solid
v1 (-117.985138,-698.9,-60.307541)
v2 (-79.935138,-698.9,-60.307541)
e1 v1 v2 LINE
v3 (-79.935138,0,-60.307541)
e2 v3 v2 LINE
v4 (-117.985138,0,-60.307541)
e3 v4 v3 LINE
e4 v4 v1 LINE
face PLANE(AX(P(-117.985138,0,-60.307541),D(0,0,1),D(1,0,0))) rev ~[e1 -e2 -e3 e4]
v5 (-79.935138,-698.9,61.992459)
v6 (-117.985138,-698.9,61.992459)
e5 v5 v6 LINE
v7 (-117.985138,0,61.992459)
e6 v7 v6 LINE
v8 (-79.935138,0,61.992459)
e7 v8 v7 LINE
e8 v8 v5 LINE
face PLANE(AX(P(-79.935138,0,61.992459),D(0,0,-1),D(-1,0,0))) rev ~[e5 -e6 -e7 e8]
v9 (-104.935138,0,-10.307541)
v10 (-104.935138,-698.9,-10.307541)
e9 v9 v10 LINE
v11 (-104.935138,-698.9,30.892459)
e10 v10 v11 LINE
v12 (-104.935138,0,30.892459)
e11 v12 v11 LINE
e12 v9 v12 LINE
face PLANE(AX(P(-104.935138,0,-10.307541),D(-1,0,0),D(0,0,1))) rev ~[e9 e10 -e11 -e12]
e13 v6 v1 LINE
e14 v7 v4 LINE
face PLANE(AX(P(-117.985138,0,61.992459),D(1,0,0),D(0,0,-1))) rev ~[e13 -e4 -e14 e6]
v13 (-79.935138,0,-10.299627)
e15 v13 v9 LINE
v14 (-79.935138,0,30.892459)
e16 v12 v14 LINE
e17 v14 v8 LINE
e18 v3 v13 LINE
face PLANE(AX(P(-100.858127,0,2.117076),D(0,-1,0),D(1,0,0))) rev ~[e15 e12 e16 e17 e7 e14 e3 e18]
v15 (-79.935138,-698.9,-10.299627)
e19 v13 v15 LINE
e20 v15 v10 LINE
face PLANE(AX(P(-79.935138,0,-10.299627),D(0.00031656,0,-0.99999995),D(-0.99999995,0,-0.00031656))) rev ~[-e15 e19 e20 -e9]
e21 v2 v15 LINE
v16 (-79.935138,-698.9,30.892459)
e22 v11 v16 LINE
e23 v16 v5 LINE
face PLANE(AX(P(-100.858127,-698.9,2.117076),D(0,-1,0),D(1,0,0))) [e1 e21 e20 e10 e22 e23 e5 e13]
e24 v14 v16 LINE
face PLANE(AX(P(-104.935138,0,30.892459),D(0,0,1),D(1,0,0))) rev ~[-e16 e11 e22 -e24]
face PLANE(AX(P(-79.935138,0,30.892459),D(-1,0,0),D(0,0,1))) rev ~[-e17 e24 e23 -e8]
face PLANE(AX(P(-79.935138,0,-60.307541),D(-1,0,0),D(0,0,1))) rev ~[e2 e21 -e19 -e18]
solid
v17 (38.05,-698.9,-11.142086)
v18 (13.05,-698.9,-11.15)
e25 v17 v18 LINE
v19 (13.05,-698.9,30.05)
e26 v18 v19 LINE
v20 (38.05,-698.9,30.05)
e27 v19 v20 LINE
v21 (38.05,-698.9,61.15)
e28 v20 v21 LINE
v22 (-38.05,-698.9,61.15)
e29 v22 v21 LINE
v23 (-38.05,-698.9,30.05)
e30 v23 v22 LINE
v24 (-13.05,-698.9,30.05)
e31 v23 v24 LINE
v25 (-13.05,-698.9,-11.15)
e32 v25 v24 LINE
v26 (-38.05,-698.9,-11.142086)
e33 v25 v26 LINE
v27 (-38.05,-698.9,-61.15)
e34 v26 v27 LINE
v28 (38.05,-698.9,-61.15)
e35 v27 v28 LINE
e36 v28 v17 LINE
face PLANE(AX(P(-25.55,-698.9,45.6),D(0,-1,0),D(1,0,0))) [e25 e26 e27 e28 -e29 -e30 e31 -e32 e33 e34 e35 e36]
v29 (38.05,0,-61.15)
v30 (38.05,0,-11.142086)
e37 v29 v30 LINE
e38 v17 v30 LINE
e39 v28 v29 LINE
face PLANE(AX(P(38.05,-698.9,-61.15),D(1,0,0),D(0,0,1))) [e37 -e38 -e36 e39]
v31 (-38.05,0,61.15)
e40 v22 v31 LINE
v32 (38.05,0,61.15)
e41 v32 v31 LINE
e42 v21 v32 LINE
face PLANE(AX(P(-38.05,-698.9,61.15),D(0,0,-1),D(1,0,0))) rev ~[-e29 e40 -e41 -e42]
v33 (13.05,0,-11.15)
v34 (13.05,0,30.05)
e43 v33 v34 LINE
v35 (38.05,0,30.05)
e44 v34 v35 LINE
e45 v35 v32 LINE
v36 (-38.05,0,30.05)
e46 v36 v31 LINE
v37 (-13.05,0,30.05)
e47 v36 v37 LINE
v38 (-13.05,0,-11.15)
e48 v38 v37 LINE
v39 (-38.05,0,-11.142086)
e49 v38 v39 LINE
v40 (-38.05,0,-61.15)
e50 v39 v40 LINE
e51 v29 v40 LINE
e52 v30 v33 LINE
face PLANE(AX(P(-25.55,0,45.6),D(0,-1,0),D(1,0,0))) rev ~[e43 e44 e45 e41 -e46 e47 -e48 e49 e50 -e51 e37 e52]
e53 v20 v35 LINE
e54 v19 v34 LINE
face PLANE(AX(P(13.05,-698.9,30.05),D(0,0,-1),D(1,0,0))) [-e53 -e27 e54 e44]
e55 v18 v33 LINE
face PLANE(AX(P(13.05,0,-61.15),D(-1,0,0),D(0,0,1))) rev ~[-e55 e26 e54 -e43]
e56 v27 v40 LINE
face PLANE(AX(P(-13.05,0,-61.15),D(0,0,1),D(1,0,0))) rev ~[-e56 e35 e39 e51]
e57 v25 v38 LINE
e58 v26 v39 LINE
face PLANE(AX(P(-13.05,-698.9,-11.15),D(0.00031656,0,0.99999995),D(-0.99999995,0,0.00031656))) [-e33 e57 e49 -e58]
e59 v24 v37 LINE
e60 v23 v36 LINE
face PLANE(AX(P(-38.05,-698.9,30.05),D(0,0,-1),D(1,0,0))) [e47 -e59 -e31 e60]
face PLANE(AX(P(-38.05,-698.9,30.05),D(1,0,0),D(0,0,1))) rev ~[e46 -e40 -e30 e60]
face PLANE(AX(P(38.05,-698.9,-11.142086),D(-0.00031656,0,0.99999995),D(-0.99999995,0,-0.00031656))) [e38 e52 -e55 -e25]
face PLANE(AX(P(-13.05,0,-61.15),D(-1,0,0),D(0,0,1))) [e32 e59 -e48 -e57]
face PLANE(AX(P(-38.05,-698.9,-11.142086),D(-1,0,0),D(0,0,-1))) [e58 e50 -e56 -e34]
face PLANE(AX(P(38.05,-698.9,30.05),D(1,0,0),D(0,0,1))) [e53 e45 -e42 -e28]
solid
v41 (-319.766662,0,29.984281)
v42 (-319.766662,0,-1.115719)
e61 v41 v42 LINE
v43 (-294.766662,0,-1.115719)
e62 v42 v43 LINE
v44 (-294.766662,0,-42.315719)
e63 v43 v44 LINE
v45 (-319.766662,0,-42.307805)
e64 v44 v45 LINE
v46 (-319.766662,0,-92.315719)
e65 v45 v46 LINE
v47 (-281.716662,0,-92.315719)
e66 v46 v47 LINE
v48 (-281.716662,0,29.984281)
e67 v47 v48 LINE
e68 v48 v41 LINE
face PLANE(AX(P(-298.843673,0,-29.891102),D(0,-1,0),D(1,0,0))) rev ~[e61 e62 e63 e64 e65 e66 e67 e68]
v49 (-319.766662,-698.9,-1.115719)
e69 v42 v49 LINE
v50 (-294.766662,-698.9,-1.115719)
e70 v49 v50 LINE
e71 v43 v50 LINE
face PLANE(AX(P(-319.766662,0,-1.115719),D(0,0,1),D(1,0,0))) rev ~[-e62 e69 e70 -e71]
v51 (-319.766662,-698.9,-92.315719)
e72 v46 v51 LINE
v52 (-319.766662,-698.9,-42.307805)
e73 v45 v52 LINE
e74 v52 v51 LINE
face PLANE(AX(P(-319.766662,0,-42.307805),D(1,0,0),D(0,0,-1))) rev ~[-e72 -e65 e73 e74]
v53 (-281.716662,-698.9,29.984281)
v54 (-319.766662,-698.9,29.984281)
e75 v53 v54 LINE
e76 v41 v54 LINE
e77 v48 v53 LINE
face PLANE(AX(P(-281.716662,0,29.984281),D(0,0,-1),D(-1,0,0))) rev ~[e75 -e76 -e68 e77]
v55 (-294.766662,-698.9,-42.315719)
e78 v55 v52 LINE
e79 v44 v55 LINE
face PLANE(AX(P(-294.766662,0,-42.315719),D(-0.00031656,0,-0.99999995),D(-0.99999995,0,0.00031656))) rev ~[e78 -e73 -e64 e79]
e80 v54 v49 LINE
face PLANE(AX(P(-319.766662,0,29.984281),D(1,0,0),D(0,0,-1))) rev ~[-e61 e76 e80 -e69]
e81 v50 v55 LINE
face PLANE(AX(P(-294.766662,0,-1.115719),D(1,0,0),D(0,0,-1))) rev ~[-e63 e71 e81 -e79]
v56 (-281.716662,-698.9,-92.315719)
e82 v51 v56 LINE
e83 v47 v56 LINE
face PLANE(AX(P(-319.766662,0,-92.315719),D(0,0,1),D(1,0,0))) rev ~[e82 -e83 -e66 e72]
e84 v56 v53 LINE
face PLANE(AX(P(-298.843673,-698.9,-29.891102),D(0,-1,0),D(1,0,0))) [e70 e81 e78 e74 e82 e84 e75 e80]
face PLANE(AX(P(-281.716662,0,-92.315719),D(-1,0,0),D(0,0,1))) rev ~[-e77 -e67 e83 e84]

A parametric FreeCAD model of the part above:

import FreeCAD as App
import Part
import Sketcher

doc = App.newDocument("Part")
params = doc.addObject("Spreadsheet::Sheet", "Params")
for row, (alias, value) in enumerate([
    ("sketch1_width", "26.1 mm"),
    ("sketch1_height", "122.3 mm"),
    ("pad1_length", "698.9 mm"),
    ("sketch2_width", "25 mm"),
    ("sketch2_height", "50 mm"),
    ("sketch2_height2", "31.1 mm"),
    ("pad2_length", "698.9 mm"),
    ("sketch3_width", "25 mm"),
    ("sketch3_height", "31.1 mm"),
    ("sketch3_height2", "122.3 mm"),
    ("sketch3_height3", "41.2 mm"),
    ("sketch3_width2", "38.05 mm"),
    ("pad3_length", "698.9 mm"),
    ("sketch4_width", "25 mm"),
    ("sketch4_height", "122.3 mm"),
    ("sketch4_height2", "31.1 mm"),
    ("sketch4_height3", "41.2 mm"),
    ("sketch4_width2", "38.05 mm"),
    ("pad4_length", "698.9 mm"),
], start=1):
    params.set(f"A{row}", alias)
    params.set(f"B{row}", "=" + value)
    params.setAlias(f"B{row}", alias)

body = doc.addObject("PartDesign::Body", "Body")

sketch1 = body.newObject("Sketcher::SketchObject", "Sketch")
sketch1.AttachmentSupport = (doc.getObject("XZ_Plane"), [""])
sketch1.MapMode = "FlatFace"
sketch1.addGeometry(Part.LineSegment(App.Vector(-13, 61, 0), App.Vector(-13, -61, 0)), False)
sketch1.addGeometry(Part.LineSegment(App.Vector(-13, -61, 0), App.Vector(13, -61, 0)), False)
sketch1.addGeometry(Part.LineSegment(App.Vector(13, -61, 0), App.Vector(13, 61, 0)), False)
sketch1.addGeometry(Part.LineSegment(App.Vector(13, 61, 0), App.Vector(-13, 61, 0)), False)
sketch1.addConstraint(Sketcher.Constraint("Coincident", 0, 2, 1, 1))
sketch1.addConstraint(Sketcher.Constraint("Coincident", 1, 2, 2, 1))
sketch1.addConstraint(Sketcher.Constraint("Coincident", 2, 2, 3, 1))
sketch1.addConstraint(Sketcher.Constraint("Coincident", 3, 2, 0, 1))
sketch1.addConstraint(Sketcher.Constraint("Vertical", 0))
sketch1.addConstraint(Sketcher.Constraint("Horizontal", 1))
sketch1.addConstraint(Sketcher.Constraint("Vertical", 2))
sketch1.addConstraint(Sketcher.Constraint("Horizontal", 3))
sketch1.addConstraint(Sketcher.Constraint("Symmetric", 0, 2, 2, 2, -1, 1))
sketch1.addConstraint(Sketcher.Constraint("DistanceX", 1, 1, 1, 2, 26.1))
sketch1.addConstraint(Sketcher.Constraint("DistanceY", 0, 2, 0, 1, 122.3))
sketch1.setExpression("Constraints[9]", "Params.sketch1_width")
sketch1.setExpression("Constraints[10]", "Params.sketch1_height")
pad1 = body.newObject("PartDesign::Pad", "Pad")
pad1.Profile = sketch1
pad1.setExpression("Length", "Params.pad1_length")

sketch2 = body.newObject("Sketcher::SketchObject", "Sketch001")
sketch2.AttachmentSupport = (doc.getObject("XZ_Plane"), [""])
sketch2.MapMode = "FlatFace"
sketch2.AttachmentOffset = App.Placement(App.Vector(0, 0, 698.9), App.Rotation())
sketch2.addGeometry(Part.LineSegment(App.Vector(-38, 61, 0), App.Vector(-38, 30, 0)), False)
sketch2.addGeometry(Part.LineSegment(App.Vector(-38, 30, 0), App.Vector(-13, 30, 0)), False)
sketch2.addGeometry(Part.LineSegment(App.Vector(-13, 30, 0), App.Vector(-13, 61, 0)), False)
sketch2.addGeometry(Part.LineSegment(App.Vector(-13, 61, 0), App.Vector(-38, 61, 0)), False)
sketch2.addGeometry(Part.LineSegment(App.Vector(-38, -61, 0), App.Vector(-13, -61, 0)), False)
sketch2.addGeometry(Part.LineSegment(App.Vector(-13, -61, 0), App.Vector(-13, -11, 0)), False)
sketch2.addGeometry(Part.LineSegment(App.Vector(-13, -11, 0), App.Vector(-38, -11, 0)), False)
sketch2.addGeometry(Part.LineSegment(App.Vector(-38, -11, 0), App.Vector(-38, -61, 0)), False)
sketch2.addGeometry(Part.LineSegment(App.Vector(13, 61, 0), App.Vector(13, 30, 0)), False)
sketch2.addGeometry(Part.LineSegment(App.Vector(13, 30, 0), App.Vector(38, 30, 0)), False)
sketch2.addGeometry(Part.LineSegment(App.Vector(38, 30, 0), App.Vector(38, 61, 0)), False)
sketch2.addGeometry(Part.LineSegment(App.Vector(38, 61, 0), App.Vector(13, 61, 0)), False)
sketch2.addGeometry(Part.LineSegment(App.Vector(38, -61, 0), App.Vector(38, -11, 0)), False)
sketch2.addGeometry(Part.LineSegment(App.Vector(38, -11, 0), App.Vector(13, -11, 0)), False)
sketch2.addGeometry(Part.LineSegment(App.Vector(13, -11, 0), App.Vector(13, -61, 0)), False)
sketch2.addGeometry(Part.LineSegment(App.Vector(13, -61, 0), App.Vector(38, -61, 0)), False)
sketch2.addConstraint(Sketcher.Constraint("Coincident", 0, 2, 1, 1))
sketch2.addConstraint(Sketcher.Constraint("Coincident", 1, 2, 2, 1))
sketch2.addConstraint(Sketcher.Constraint("Coincident", 2, 2, 3, 1))
sketch2.addConstraint(Sketcher.Constraint("Coincident", 3, 2, 0, 1))
sketch2.addConstraint(Sketcher.Constraint("Coincident", 4, 2, 5, 1))
sketch2.addConstraint(Sketcher.Constraint("Coincident", 5, 2, 6, 1))
sketch2.addConstraint(Sketcher.Constraint("Coincident", 6, 2, 7, 1))
sketch2.addConstraint(Sketcher.Constraint("Coincident", 7, 2, 4, 1))
sketch2.addConstraint(Sketcher.Constraint("Coincident", 8, 2, 9, 1))
sketch2.addConstraint(Sketcher.Constraint("Coincident", 9, 2, 10, 1))
sketch2.addConstraint(Sketcher.Constraint("Coincident", 10, 2, 11, 1))
sketch2.addConstraint(Sketcher.Constraint("Coincident", 11, 2, 8, 1))
sketch2.addConstraint(Sketcher.Constraint("Coincident", 12, 2, 13, 1))
sketch2.addConstraint(Sketcher.Constraint("Coincident", 13, 2, 14, 1))
sketch2.addConstraint(Sketcher.Constraint("Coincident", 14, 2, 15, 1))
sketch2.addConstraint(Sketcher.Constraint("Coincident", 15, 2, 12, 1))
sketch2.addConstraint(Sketcher.Constraint("Vertical", 0))
sketch2.addConstraint(Sketcher.Constraint("Horizontal", 1))
sketch2.addConstraint(Sketcher.Constraint("Vertical", 2))
sketch2.addConstraint(Sketcher.Constraint("Horizontal", 3))
sketch2.addConstraint(Sketcher.Constraint("Horizontal", 4))
sketch2.addConstraint(Sketcher.Constraint("Vertical", 5))
sketch2.addConstraint(Sketcher.Constraint("Vertical", 7))
sketch2.addConstraint(Sketcher.Constraint("Vertical", 8))
sketch2.addConstraint(Sketcher.Constraint("Horizontal", 9))
sketch2.addConstraint(Sketcher.Constraint("Vertical", 10))
sketch2.addConstraint(Sketcher.Constraint("Horizontal", 11))
sketch2.addConstraint(Sketcher.Constraint("Vertical", 12))
sketch2.addConstraint(Sketcher.Constraint("Vertical", 14))
sketch2.addConstraint(Sketcher.Constraint("Horizontal", 15))
sketch2.addConstraint(Sketcher.Constraint("Symmetric", 7, 2, 10, 2, -1, 1))
sketch2.addConstraint(Sketcher.Constraint("Symmetric", 2, 2, 14, 2, -1, 1))
sketch2.addConstraint(Sketcher.Constraint("Symmetric", 1, 2, 8, 2, -2))
sketch2.addConstraint(Sketcher.Constraint("Symmetric", 3, 2, 10, 2, -2))
sketch2.addConstraint(Sketcher.Constraint("Symmetric", 6, 2, 12, 2, -2))
sketch2.addConstraint(Sketcher.Constraint("Symmetric", 5, 2, 13, 2, -2))
sketch2.addConstraint(Sketcher.Constraint("DistanceX", 1, 1, 1, 2, 25.0))
sketch2.addConstraint(Sketcher.Constraint("DistanceY", 5, 1, 5, 2, 50.0))
sketch2.addConstraint(Sketcher.Constraint("DistanceY", 0, 2, 0, 1, 31.1))
sketch2.addConstraint(Sketcher.Constraint("DistanceY", 4, 2, 1, 2, 91.2))
sketch2.addConstraint(Sketcher.Constraint("DistanceX", 1, 2, 8, 2, 26.1))
sketch2.addConstraint(Sketcher.Constraint("DistanceY", 7, 2, 7, 1, 50.007914))
sketch2.setExpression("Constraints[36]", "Params.sketch2_width")
sketch2.setExpression("Constraints[37]", "Params.sketch2_height")
sketch2.setExpression("Constraints[38]", "Params.sketch2_height2")
pad2 = body.newObject("PartDesign::Pad", "Pad001")
pad2.Profile = sketch2
pad2.setExpression("Length", "Params.pad2_length")
pad2.Reversed = True
body2 = doc.addObject("PartDesign::Body", "Body001")

sketch3 = body2.newObject("Sketcher::SketchObject", "Sketch002")
sketch3.AttachmentSupport = (doc.getObject("XZ_Plane001"), [""])
sketch3.MapMode = "FlatFace"
sketch3.addGeometry(Part.LineSegment(App.Vector(-105, 31, 0), App.Vector(-80, 31, 0)), False)
sketch3.addGeometry(Part.LineSegment(App.Vector(-80, 31, 0), App.Vector(-80, 62, 0)), False)
sketch3.addGeometry(Part.LineSegment(App.Vector(-80, 62, 0), App.Vector(-118, 62, 0)), False)
sketch3.addGeometry(Part.LineSegment(App.Vector(-118, 62, 0), App.Vector(-118, -60, 0)), False)
sketch3.addGeometry(Part.LineSegment(App.Vector(-118, -60, 0), App.Vector(-80, -60, 0)), False)
sketch3.addGeometry(Part.LineSegment(App.Vector(-80, -60, 0), App.Vector(-80, -10, 0)), False)
sketch3.addGeometry(Part.LineSegment(App.Vector(-80, -10, 0), App.Vector(-105, -10, 0)), False)
sketch3.addGeometry(Part.LineSegment(App.Vector(-105, -10, 0), App.Vector(-105, 31, 0)), False)
sketch3.addConstraint(Sketcher.Constraint("Coincident", 0, 2, 1, 1))
sketch3.addConstraint(Sketcher.Constraint("Coincident", 1, 2, 2, 1))
sketch3.addConstraint(Sketcher.Constraint("Coincident", 2, 2, 3, 1))
sketch3.addConstraint(Sketcher.Constraint("Coincident", 3, 2, 4, 1))
sketch3.addConstraint(Sketcher.Constraint("Coincident", 4, 2, 5, 1))
sketch3.addConstraint(Sketcher.Constraint("Coincident", 5, 2, 6, 1))
sketch3.addConstraint(Sketcher.Constraint("Coincident", 6, 2, 7, 1))
sketch3.addConstraint(Sketcher.Constraint("Coincident", 7, 2, 0, 1))
sketch3.addConstraint(Sketcher.Constraint("Horizontal", 0))
sketch3.addConstraint(Sketcher.Constraint("Vertical", 1))
sketch3.addConstraint(Sketcher.Constraint("Horizontal", 2))
sketch3.addConstraint(Sketcher.Constraint("Vertical", 3))
sketch3.addConstraint(Sketcher.Constraint("Horizontal", 4))
sketch3.addConstraint(Sketcher.Constraint("Vertical", 5))
sketch3.addConstraint(Sketcher.Constraint("Vertical", 7))
sketch3.addConstraint(Sketcher.Constraint("Vertical", 1, 2, 4, 2))
sketch3.addConstraint(Sketcher.Constraint("DistanceX", 0, 1, 0, 2, 25.0))
sketch3.addConstraint(Sketcher.Constraint("DistanceY", 1, 1, 1, 2, 31.1))
sketch3.addConstraint(Sketcher.Constraint("DistanceY", 3, 2, 3, 1, 122.3))
sketch3.addConstraint(Sketcher.Constraint("DistanceY", 7, 1, 7, 2, 41.2))
sketch3.addConstraint(Sketcher.Constraint("DistanceX", 2, 2, 2, 1, 38.05))
sketch3.addConstraint(Sketcher.Constraint("DistanceY", 5, 1, 5, 2, 50.007914))
sketch3.addConstraint(Sketcher.Constraint("DistanceY", -1, 1, 0, 2, 30.892459))
sketch3.addConstraint(Sketcher.Constraint("DistanceX", 2, 2, -1, 1, 117.985138))
sketch3.setExpression("Constraints[16]", "Params.sketch3_width")
sketch3.setExpression("Constraints[17]", "Params.sketch3_height")
sketch3.setExpression("Constraints[18]", "Params.sketch3_height2")
sketch3.setExpression("Constraints[19]", "Params.sketch3_height3")
sketch3.setExpression("Constraints[20]", "Params.sketch3_width2")
pad3 = body2.newObject("PartDesign::Pad", "Pad002")
pad3.Profile = sketch3
pad3.setExpression("Length", "Params.pad3_length")
body3 = doc.addObject("PartDesign::Body", "Body002")

sketch4 = body3.newObject("Sketcher::SketchObject", "Sketch003")
sketch4.AttachmentSupport = (doc.getObject("XZ_Plane002"), [""])
sketch4.MapMode = "FlatFace"
sketch4.addGeometry(Part.LineSegment(App.Vector(-282, -92, 0), App.Vector(-282, 30, 0)), False)
sketch4.addGeometry(Part.LineSegment(App.Vector(-282, 30, 0), App.Vector(-320, 30, 0)), False)
sketch4.addGeometry(Part.LineSegment(App.Vector(-320, 30, 0), App.Vector(-320, -1, 0)), False)
sketch4.addGeometry(Part.LineSegment(App.Vector(-320, -1, 0), App.Vector(-295, -1, 0)), False)
sketch4.addGeometry(Part.LineSegment(App.Vector(-295, -1, 0), App.Vector(-295, -42, 0)), False)
sketch4.addGeometry(Part.LineSegment(App.Vector(-295, -42, 0), App.Vector(-320, -42, 0)), False)
sketch4.addGeometry(Part.LineSegment(App.Vector(-320, -42, 0), App.Vector(-320, -92, 0)), False)
sketch4.addGeometry(Part.LineSegment(App.Vector(-320, -92, 0), App.Vector(-282, -92, 0)), False)
sketch4.addConstraint(Sketcher.Constraint("Coincident", 0, 2, 1, 1))
sketch4.addConstraint(Sketcher.Constraint("Coincident", 1, 2, 2, 1))
sketch4.addConstraint(Sketcher.Constraint("Coincident", 2, 2, 3, 1))
sketch4.addConstraint(Sketcher.Constraint("Coincident", 3, 2, 4, 1))
sketch4.addConstraint(Sketcher.Constraint("Coincident", 4, 2, 5, 1))
sketch4.addConstraint(Sketcher.Constraint("Coincident", 5, 2, 6, 1))
sketch4.addConstraint(Sketcher.Constraint("Coincident", 6, 2, 7, 1))
sketch4.addConstraint(Sketcher.Constraint("Coincident", 7, 2, 0, 1))
sketch4.addConstraint(Sketcher.Constraint("Vertical", 0))
sketch4.addConstraint(Sketcher.Constraint("Horizontal", 1))
sketch4.addConstraint(Sketcher.Constraint("Vertical", 2))
sketch4.addConstraint(Sketcher.Constraint("Horizontal", 3))
sketch4.addConstraint(Sketcher.Constraint("Vertical", 4))
sketch4.addConstraint(Sketcher.Constraint("Vertical", 6))
sketch4.addConstraint(Sketcher.Constraint("Horizontal", 7))
sketch4.addConstraint(Sketcher.Constraint("Vertical", 2, 2, 5, 2))
sketch4.addConstraint(Sketcher.Constraint("DistanceX", 3, 1, 3, 2, 25.0))
sketch4.addConstraint(Sketcher.Constraint("DistanceY", 0, 1, 0, 2, 122.3))
sketch4.addConstraint(Sketcher.Constraint("DistanceY", 2, 2, 2, 1, 31.1))
sketch4.addConstraint(Sketcher.Constraint("DistanceY", 4, 2, 4, 1, 41.2))
sketch4.addConstraint(Sketcher.Constraint("DistanceX", 1, 2, 1, 1, 38.05))
sketch4.addConstraint(Sketcher.Constraint("DistanceY", 6, 2, 6, 1, 50.007914))
sketch4.addConstraint(Sketcher.Constraint("DistanceX", 0, 2, -1, 1, 281.716662))
sketch4.addConstraint(Sketcher.Constraint("DistanceY", -1, 1, 0, 2, 29.984281))
sketch4.setExpression("Constraints[16]", "Params.sketch4_width")
sketch4.setExpression("Constraints[17]", "Params.sketch4_height")
sketch4.setExpression("Constraints[18]", "Params.sketch4_height2")
sketch4.setExpression("Constraints[19]", "Params.sketch4_height3")
sketch4.setExpression("Constraints[20]", "Params.sketch4_width2")
pad4 = body3.newObject("PartDesign::Pad", "Pad003")
pad4.Profile = sketch4
pad4.setExpression("Length", "Params.pad4_length")

doc.recompute()
